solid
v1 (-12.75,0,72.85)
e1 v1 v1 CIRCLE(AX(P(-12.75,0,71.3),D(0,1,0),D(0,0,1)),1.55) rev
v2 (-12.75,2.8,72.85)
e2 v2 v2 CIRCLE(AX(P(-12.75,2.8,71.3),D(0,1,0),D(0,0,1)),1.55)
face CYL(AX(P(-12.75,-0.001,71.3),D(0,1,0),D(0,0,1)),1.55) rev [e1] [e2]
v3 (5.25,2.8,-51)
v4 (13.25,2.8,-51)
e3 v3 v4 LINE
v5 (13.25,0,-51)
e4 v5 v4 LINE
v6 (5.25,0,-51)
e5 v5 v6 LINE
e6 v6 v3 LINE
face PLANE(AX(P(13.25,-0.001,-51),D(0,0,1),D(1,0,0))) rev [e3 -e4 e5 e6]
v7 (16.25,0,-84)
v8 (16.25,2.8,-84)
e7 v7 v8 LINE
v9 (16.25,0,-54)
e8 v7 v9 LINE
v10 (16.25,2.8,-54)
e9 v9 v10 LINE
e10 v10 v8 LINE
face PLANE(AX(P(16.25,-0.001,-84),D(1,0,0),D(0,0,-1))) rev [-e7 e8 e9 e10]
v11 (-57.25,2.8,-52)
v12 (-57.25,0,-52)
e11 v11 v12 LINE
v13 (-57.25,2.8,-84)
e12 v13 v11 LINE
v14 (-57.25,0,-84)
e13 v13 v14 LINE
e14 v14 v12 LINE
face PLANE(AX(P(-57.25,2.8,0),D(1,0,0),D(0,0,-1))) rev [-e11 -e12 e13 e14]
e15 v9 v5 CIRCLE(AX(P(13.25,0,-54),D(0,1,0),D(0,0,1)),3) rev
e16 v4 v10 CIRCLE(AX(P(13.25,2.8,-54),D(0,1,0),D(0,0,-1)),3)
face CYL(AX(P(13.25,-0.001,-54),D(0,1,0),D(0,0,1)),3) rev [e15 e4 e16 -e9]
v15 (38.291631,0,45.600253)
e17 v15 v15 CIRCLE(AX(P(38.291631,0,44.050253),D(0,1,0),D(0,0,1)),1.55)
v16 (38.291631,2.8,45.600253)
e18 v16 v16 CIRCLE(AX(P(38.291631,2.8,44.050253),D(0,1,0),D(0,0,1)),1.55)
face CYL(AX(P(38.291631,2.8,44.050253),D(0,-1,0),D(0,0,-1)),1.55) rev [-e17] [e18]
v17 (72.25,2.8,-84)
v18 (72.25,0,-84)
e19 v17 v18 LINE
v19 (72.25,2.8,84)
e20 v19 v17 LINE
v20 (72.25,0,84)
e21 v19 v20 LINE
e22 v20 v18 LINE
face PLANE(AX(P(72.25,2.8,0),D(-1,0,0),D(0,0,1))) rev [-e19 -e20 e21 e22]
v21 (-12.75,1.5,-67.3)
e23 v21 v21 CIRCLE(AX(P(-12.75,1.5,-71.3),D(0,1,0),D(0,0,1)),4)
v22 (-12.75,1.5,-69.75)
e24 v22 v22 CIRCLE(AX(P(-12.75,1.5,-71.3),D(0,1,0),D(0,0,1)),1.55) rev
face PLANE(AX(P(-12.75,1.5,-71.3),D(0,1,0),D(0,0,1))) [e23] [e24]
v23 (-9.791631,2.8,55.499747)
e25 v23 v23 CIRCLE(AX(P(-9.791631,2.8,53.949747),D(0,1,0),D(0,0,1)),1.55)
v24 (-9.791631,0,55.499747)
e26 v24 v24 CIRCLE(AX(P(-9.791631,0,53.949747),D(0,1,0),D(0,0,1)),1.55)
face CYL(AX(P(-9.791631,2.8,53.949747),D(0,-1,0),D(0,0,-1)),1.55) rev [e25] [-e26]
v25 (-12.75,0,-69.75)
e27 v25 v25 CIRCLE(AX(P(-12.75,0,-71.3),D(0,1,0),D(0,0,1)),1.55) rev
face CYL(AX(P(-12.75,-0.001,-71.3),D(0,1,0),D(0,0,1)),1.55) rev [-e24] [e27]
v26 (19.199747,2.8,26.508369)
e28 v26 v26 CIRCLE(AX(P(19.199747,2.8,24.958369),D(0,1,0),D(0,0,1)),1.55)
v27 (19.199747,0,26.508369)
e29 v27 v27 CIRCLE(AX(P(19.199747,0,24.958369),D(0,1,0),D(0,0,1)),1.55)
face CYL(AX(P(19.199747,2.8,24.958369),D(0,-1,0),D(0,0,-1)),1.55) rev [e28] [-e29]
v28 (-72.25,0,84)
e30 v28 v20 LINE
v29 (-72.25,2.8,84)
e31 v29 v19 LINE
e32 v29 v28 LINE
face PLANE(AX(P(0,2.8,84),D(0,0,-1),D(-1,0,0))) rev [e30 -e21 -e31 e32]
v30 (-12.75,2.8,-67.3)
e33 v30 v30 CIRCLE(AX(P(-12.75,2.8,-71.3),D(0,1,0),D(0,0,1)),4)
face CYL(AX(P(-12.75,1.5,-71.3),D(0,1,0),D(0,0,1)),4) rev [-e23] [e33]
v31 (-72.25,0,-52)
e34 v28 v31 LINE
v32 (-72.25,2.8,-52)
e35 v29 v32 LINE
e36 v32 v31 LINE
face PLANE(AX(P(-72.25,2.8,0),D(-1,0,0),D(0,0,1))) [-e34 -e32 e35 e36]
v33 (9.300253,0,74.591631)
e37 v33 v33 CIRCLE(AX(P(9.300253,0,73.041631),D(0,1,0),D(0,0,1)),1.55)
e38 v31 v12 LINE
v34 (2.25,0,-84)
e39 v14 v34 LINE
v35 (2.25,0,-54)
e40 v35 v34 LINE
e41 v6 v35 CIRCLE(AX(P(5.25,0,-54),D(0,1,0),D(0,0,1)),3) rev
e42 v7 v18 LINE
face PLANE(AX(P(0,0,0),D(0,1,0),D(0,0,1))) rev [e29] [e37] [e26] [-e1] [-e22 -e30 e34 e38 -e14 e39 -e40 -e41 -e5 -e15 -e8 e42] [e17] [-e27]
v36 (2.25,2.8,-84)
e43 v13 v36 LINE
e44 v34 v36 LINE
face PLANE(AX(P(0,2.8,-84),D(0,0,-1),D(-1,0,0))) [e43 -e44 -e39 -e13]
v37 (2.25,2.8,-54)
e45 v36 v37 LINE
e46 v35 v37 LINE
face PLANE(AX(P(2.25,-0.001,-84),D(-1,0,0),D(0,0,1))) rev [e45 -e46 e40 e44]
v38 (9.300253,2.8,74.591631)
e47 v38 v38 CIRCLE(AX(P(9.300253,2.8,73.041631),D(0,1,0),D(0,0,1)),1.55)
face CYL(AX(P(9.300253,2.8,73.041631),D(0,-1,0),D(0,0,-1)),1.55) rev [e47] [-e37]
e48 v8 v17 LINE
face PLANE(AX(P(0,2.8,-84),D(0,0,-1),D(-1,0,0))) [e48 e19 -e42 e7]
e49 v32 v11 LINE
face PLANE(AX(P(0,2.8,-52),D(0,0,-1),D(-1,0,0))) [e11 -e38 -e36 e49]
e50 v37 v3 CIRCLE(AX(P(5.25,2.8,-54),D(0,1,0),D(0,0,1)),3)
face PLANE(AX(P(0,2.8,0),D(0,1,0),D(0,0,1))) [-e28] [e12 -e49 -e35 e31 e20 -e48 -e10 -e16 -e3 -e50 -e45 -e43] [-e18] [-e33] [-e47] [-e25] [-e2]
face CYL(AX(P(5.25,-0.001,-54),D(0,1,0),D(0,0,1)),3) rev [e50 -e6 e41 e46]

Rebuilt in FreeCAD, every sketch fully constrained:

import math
import FreeCAD as App
import Part
import Sketcher

doc = App.newDocument("Part")
body = doc.addObject("PartDesign::Body", "Body")

sketch1 = doc.addObject("Sketcher::SketchObject", "Sketch")
body.addObject(sketch1)
sketch1.AttachmentSupport = (doc.XZ_Plane, [""])
sketch1.MapMode = "FlatFace"
sketch1.addGeometry(Part.LineSegment(App.Vector(-72.2, -52, 0), App.Vector(-72.2, 84, 0)), False)
sketch1.addGeometry(Part.LineSegment(App.Vector(-72.2, 84, 0), App.Vector(72.2, 84, 0)), False)
sketch1.addGeometry(Part.LineSegment(App.Vector(72.2, 84, 0), App.Vector(72.2, -84, 0)), False)
sketch1.addGeometry(Part.LineSegment(App.Vector(72.2, -84, 0), App.Vector(-57.2, -84, 0)), False)
sketch1.addGeometry(Part.LineSegment(App.Vector(-57.2, -84, 0), App.Vector(-57.2, -52, 0)), False)
sketch1.addGeometry(Part.LineSegment(App.Vector(-57.2, -52, 0), App.Vector(-72.2, -52, 0)), False)
sketch1.addGeometry(Part.Circle(App.Vector(9.3, 73, 0), App.Vector(0, 0, 1), 1.6), False)
sketch1.addGeometry(Part.Circle(App.Vector(-9.8, 53.9, 0), App.Vector(0, 0, 1), 1.6), False)
sketch1.addGeometry(Part.Circle(App.Vector(38.3, 44.1, 0), App.Vector(0, 0, 1), 1.6), False)
sketch1.addGeometry(Part.Circle(App.Vector(19.2, 25, 0), App.Vector(0, 0, 1), 1.6), False)
sketch1.addConstraint(Sketcher.Constraint("Coincident", 0, 2, 1, 1))
sketch1.addConstraint(Sketcher.Constraint("Coincident", 1, 2, 2, 1))
sketch1.addConstraint(Sketcher.Constraint("Coincident", 2, 2, 3, 1))
sketch1.addConstraint(Sketcher.Constraint("Coincident", 3, 2, 4, 1))
sketch1.addConstraint(Sketcher.Constraint("Coincident", 4, 2, 5, 1))
sketch1.addConstraint(Sketcher.Constraint("Coincident", 5, 2, 0, 1))
sketch1.addConstraint(Sketcher.Constraint("Vertical", 0))
sketch1.addConstraint(Sketcher.Constraint("Horizontal", 1))
sketch1.addConstraint(Sketcher.Constraint("Vertical", 2))
sketch1.addConstraint(Sketcher.Constraint("Horizontal", 3))
sketch1.addConstraint(Sketcher.Constraint("Vertical", 4))
sketch1.addConstraint(Sketcher.Constraint("Horizontal", 5))
sketch1.addConstraint(Sketcher.Constraint("Equal", 6, 7))
sketch1.addConstraint(Sketcher.Constraint("Equal", 7, 8))
sketch1.addConstraint(Sketcher.Constraint("Equal", 8, 9))
sketch1.addConstraint(Sketcher.Constraint("Symmetric", 0, 2, 2, 2, -1, 1))
sketch1.addConstraint(Sketcher.Constraint("Diameter", 6, 3.1))
sketch1.addConstraint(Sketcher.Constraint("DistanceX", 5, 2, 5, 1, 15.0))
sketch1.addConstraint(Sketcher.Constraint("DistanceY", 0, 1, 0, 2, 136.0))
sketch1.addConstraint(Sketcher.Constraint("DistanceY", 2, 2, 2, 1, 168.0))
sketch1.addConstraint(Sketcher.Constraint("DistanceX", 1, 1, 1, 2, 144.5))
sketch1.addConstraint(Sketcher.Constraint("DistanceY", -1, 1, 6, 3, 73.041631))
sketch1.addConstraint(Sketcher.Constraint("DistanceX", 7, 3, -1, 1, 9.791631))
sketch1.addConstraint(Sketcher.Constraint("DistanceX", -1, 1, 8, 3, 38.291631))
sketch1.addConstraint(Sketcher.Constraint("DistanceY", -1, 1, 9, 3, 24.958369))
sketch1.addConstraint(Sketcher.Constraint("DistanceX", 6, 3, 8, 3, 28.991378))
sketch1.addConstraint(Sketcher.Constraint("DistanceY", 8, 3, 6, 3, 28.991378))
sketch1.addConstraint(Sketcher.Constraint("DistanceX", 7, 3, 9, 3, 28.991378))
sketch1.addConstraint(Sketcher.Constraint("DistanceY", 9, 3, 7, 3, 28.991378))
pad1 = doc.addObject("PartDesign::Pad", "Pad")
body.addObject(pad1)
pad1.Profile = sketch1
pad1.Length = 2.8
pad1.Reversed = True

sketch2 = doc.addObject("Sketcher::SketchObject", "Sketch001")
body.addObject(sketch2)
sketch2.AttachmentSupport = (doc.XZ_Plane, [""])
sketch2.MapMode = "FlatFace"
sketch2.AttachmentOffset = App.Placement(App.Vector(0, 0, -2.8), App.Rotation())
sketch2.addGeometry(Part.Circle(App.Vector(-12.8, -71.3, 0), App.Vector(0, 0, 1), 1.6), False)
sketch2.addConstraint(Sketcher.Constraint("Diameter", 0, 3.1))
sketch2.addConstraint(Sketcher.Constraint("DistanceY", 0, 3, -1, 1, 71.3))
sketch2.addConstraint(Sketcher.Constraint("DistanceX", 0, 3, -1, 1, 12.75))
pocket1 = doc.addObject("PartDesign::Pocket", "Pocket")
body.addObject(pocket1)
pocket1.Profile = sketch2
pocket1.Type = "UpToFirst"
pocket1.Reversed = True

sketch3 = doc.addObject("Sketcher::SketchObject", "Sketch002")
body.addObject(sketch3)
sketch3.AttachmentSupport = (doc.XZ_Plane, [""])
sketch3.MapMode = "FlatFace"
sketch3.AttachmentOffset = App.Placement(App.Vector(0, 0, -2.8), App.Rotation())
sketch3.addGeometry(Part.Circle(App.Vector(-12.8, 71.3, 0), App.Vector(0, 0, 1), 1.6), False)
sketch3.addConstraint(Sketcher.Constraint("Diameter", 0, 3.1))
sketch3.addConstraint(Sketcher.Constraint("DistanceY", -1, 1, 0, 3, 71.3))
sketch3.addConstraint(Sketcher.Constraint("DistanceX", 0, 3, -1, 1, 12.75))
pocket2 = doc.addObject("PartDesign::Pocket", "Pocket001")
body.addObject(pocket2)
pocket2.Profile = sketch3
pocket2.Type = "UpToFirst"
pocket2.Reversed = True

sketch4 = doc.addObject("Sketcher::SketchObject", "Sketch003")
body.addObject(sketch4)
sketch4.AttachmentSupport = (doc.XZ_Plane, [""])
sketch4.MapMode = "FlatFace"
sketch4.AttachmentOffset = App.Placement(App.Vector(0, 0, -2.8), App.Rotation())
sketch4.addGeometry(Part.Circle(App.Vector(-12.8, -71.3, 0), App.Vector(0, 0, 1), 4), False)
sketch4.addConstraint(Sketcher.Constraint("Diameter", 0, 8.0))
sketch4.addConstraint(Sketcher.Constraint("DistanceY", 0, 3, -1, 1, 71.3))
sketch4.addConstraint(Sketcher.Constraint("DistanceX", 0, 3, -1, 1, 12.75))
pocket3 = doc.addObject("PartDesign::Pocket", "Pocket002")
body.addObject(pocket3)
pocket3.Profile = sketch4
pocket3.Length = 1.3
pocket3.Reversed = True

sketch5 = doc.addObject("Sketcher::SketchObject", "Sketch004")
body.addObject(sketch5)
sketch5.AttachmentSupport = (doc.XZ_Plane, [""])
sketch5.MapMode = "FlatFace"
sketch5.AttachmentOffset = App.Placement(App.Vector(0, 0, -2.8), App.Rotation())
sketch5.addGeometry(Part.LineSegment(App.Vector(16.2, -84, 0), App.Vector(2.2, -84, 0)), False)
sketch5.addGeometry(Part.LineSegment(App.Vector(2.2, -84, 0), App.Vector(2.2, -54, 0)), False)
sketch5.addGeometry(Part.ArcOfCircle(Part.Circle(App.Vector(5.2, -54, 0), App.Vector(0, 0, 1), 3), math.radians(90), math.radians(180)), False)
sketch5.addGeometry(Part.LineSegment(App.Vector(5.2, -51, 0), App.Vector(13.2, -51, 0)), False)
sketch5.addGeometry(Part.ArcOfCircle(Part.Circle(App.Vector(13.3, -54, 0), App.Vector(0, 0, 1), 3), math.radians(0), math.radians(90)), False)
sketch5.addGeometry(Part.LineSegment(App.Vector(16.2, -54, 0), App.Vector(16.2, -84, 0)), False)
sketch5.addConstraint(Sketcher.Constraint("Coincident", 0, 2, 1, 1))
sketch5.addConstraint(Sketcher.Constraint("Tangent", 1, 2, 2, 2))
sketch5.addConstraint(Sketcher.Constraint("Tangent", 2, 1, 3, 1))
sketch5.addConstraint(Sketcher.Constraint("Tangent", 3, 2, 4, 2))
sketch5.addConstraint(Sketcher.Constraint("Tangent", 4, 1, 5, 1))
sketch5.addConstraint(Sketcher.Constraint("Coincident", 5, 2, 0, 1))
sketch5.addConstraint(Sketcher.Constraint("Horizontal", 0))
sketch5.addConstraint(Sketcher.Constraint("Vertical", 1))
sketch5.addConstraint(Sketcher.Constraint("Horizontal", 3))
sketch5.addConstraint(Sketcher.Constraint("Vertical", 5))
sketch5.addConstraint(Sketcher.Constraint("Equal", 2, 4))
sketch5.addConstraint(Sketcher.Constraint("Radius", 2, 3.0))
sketch5.addConstraint(Sketcher.Constraint("DistanceX", 0, 2, 0, 1, 14.0))
sketch5.addConstraint(Sketcher.Constraint("DistanceY", 1, 1, 1, 2, 30.0))
sketch5.addConstraint(Sketcher.Constraint("DistanceY", 2, 3, -1, 1, 54.0))
sketch5.addConstraint(Sketcher.Constraint("DistanceX", -1, 1, 2, 3, 5.25))
pocket4 = doc.addObject("PartDesign::Pocket", "Pocket003")
body.addObject(pocket4)
pocket4.Profile = sketch5
pocket4.Type = "UpToFirst"
pocket4.Reversed = True

doc.recompute()
